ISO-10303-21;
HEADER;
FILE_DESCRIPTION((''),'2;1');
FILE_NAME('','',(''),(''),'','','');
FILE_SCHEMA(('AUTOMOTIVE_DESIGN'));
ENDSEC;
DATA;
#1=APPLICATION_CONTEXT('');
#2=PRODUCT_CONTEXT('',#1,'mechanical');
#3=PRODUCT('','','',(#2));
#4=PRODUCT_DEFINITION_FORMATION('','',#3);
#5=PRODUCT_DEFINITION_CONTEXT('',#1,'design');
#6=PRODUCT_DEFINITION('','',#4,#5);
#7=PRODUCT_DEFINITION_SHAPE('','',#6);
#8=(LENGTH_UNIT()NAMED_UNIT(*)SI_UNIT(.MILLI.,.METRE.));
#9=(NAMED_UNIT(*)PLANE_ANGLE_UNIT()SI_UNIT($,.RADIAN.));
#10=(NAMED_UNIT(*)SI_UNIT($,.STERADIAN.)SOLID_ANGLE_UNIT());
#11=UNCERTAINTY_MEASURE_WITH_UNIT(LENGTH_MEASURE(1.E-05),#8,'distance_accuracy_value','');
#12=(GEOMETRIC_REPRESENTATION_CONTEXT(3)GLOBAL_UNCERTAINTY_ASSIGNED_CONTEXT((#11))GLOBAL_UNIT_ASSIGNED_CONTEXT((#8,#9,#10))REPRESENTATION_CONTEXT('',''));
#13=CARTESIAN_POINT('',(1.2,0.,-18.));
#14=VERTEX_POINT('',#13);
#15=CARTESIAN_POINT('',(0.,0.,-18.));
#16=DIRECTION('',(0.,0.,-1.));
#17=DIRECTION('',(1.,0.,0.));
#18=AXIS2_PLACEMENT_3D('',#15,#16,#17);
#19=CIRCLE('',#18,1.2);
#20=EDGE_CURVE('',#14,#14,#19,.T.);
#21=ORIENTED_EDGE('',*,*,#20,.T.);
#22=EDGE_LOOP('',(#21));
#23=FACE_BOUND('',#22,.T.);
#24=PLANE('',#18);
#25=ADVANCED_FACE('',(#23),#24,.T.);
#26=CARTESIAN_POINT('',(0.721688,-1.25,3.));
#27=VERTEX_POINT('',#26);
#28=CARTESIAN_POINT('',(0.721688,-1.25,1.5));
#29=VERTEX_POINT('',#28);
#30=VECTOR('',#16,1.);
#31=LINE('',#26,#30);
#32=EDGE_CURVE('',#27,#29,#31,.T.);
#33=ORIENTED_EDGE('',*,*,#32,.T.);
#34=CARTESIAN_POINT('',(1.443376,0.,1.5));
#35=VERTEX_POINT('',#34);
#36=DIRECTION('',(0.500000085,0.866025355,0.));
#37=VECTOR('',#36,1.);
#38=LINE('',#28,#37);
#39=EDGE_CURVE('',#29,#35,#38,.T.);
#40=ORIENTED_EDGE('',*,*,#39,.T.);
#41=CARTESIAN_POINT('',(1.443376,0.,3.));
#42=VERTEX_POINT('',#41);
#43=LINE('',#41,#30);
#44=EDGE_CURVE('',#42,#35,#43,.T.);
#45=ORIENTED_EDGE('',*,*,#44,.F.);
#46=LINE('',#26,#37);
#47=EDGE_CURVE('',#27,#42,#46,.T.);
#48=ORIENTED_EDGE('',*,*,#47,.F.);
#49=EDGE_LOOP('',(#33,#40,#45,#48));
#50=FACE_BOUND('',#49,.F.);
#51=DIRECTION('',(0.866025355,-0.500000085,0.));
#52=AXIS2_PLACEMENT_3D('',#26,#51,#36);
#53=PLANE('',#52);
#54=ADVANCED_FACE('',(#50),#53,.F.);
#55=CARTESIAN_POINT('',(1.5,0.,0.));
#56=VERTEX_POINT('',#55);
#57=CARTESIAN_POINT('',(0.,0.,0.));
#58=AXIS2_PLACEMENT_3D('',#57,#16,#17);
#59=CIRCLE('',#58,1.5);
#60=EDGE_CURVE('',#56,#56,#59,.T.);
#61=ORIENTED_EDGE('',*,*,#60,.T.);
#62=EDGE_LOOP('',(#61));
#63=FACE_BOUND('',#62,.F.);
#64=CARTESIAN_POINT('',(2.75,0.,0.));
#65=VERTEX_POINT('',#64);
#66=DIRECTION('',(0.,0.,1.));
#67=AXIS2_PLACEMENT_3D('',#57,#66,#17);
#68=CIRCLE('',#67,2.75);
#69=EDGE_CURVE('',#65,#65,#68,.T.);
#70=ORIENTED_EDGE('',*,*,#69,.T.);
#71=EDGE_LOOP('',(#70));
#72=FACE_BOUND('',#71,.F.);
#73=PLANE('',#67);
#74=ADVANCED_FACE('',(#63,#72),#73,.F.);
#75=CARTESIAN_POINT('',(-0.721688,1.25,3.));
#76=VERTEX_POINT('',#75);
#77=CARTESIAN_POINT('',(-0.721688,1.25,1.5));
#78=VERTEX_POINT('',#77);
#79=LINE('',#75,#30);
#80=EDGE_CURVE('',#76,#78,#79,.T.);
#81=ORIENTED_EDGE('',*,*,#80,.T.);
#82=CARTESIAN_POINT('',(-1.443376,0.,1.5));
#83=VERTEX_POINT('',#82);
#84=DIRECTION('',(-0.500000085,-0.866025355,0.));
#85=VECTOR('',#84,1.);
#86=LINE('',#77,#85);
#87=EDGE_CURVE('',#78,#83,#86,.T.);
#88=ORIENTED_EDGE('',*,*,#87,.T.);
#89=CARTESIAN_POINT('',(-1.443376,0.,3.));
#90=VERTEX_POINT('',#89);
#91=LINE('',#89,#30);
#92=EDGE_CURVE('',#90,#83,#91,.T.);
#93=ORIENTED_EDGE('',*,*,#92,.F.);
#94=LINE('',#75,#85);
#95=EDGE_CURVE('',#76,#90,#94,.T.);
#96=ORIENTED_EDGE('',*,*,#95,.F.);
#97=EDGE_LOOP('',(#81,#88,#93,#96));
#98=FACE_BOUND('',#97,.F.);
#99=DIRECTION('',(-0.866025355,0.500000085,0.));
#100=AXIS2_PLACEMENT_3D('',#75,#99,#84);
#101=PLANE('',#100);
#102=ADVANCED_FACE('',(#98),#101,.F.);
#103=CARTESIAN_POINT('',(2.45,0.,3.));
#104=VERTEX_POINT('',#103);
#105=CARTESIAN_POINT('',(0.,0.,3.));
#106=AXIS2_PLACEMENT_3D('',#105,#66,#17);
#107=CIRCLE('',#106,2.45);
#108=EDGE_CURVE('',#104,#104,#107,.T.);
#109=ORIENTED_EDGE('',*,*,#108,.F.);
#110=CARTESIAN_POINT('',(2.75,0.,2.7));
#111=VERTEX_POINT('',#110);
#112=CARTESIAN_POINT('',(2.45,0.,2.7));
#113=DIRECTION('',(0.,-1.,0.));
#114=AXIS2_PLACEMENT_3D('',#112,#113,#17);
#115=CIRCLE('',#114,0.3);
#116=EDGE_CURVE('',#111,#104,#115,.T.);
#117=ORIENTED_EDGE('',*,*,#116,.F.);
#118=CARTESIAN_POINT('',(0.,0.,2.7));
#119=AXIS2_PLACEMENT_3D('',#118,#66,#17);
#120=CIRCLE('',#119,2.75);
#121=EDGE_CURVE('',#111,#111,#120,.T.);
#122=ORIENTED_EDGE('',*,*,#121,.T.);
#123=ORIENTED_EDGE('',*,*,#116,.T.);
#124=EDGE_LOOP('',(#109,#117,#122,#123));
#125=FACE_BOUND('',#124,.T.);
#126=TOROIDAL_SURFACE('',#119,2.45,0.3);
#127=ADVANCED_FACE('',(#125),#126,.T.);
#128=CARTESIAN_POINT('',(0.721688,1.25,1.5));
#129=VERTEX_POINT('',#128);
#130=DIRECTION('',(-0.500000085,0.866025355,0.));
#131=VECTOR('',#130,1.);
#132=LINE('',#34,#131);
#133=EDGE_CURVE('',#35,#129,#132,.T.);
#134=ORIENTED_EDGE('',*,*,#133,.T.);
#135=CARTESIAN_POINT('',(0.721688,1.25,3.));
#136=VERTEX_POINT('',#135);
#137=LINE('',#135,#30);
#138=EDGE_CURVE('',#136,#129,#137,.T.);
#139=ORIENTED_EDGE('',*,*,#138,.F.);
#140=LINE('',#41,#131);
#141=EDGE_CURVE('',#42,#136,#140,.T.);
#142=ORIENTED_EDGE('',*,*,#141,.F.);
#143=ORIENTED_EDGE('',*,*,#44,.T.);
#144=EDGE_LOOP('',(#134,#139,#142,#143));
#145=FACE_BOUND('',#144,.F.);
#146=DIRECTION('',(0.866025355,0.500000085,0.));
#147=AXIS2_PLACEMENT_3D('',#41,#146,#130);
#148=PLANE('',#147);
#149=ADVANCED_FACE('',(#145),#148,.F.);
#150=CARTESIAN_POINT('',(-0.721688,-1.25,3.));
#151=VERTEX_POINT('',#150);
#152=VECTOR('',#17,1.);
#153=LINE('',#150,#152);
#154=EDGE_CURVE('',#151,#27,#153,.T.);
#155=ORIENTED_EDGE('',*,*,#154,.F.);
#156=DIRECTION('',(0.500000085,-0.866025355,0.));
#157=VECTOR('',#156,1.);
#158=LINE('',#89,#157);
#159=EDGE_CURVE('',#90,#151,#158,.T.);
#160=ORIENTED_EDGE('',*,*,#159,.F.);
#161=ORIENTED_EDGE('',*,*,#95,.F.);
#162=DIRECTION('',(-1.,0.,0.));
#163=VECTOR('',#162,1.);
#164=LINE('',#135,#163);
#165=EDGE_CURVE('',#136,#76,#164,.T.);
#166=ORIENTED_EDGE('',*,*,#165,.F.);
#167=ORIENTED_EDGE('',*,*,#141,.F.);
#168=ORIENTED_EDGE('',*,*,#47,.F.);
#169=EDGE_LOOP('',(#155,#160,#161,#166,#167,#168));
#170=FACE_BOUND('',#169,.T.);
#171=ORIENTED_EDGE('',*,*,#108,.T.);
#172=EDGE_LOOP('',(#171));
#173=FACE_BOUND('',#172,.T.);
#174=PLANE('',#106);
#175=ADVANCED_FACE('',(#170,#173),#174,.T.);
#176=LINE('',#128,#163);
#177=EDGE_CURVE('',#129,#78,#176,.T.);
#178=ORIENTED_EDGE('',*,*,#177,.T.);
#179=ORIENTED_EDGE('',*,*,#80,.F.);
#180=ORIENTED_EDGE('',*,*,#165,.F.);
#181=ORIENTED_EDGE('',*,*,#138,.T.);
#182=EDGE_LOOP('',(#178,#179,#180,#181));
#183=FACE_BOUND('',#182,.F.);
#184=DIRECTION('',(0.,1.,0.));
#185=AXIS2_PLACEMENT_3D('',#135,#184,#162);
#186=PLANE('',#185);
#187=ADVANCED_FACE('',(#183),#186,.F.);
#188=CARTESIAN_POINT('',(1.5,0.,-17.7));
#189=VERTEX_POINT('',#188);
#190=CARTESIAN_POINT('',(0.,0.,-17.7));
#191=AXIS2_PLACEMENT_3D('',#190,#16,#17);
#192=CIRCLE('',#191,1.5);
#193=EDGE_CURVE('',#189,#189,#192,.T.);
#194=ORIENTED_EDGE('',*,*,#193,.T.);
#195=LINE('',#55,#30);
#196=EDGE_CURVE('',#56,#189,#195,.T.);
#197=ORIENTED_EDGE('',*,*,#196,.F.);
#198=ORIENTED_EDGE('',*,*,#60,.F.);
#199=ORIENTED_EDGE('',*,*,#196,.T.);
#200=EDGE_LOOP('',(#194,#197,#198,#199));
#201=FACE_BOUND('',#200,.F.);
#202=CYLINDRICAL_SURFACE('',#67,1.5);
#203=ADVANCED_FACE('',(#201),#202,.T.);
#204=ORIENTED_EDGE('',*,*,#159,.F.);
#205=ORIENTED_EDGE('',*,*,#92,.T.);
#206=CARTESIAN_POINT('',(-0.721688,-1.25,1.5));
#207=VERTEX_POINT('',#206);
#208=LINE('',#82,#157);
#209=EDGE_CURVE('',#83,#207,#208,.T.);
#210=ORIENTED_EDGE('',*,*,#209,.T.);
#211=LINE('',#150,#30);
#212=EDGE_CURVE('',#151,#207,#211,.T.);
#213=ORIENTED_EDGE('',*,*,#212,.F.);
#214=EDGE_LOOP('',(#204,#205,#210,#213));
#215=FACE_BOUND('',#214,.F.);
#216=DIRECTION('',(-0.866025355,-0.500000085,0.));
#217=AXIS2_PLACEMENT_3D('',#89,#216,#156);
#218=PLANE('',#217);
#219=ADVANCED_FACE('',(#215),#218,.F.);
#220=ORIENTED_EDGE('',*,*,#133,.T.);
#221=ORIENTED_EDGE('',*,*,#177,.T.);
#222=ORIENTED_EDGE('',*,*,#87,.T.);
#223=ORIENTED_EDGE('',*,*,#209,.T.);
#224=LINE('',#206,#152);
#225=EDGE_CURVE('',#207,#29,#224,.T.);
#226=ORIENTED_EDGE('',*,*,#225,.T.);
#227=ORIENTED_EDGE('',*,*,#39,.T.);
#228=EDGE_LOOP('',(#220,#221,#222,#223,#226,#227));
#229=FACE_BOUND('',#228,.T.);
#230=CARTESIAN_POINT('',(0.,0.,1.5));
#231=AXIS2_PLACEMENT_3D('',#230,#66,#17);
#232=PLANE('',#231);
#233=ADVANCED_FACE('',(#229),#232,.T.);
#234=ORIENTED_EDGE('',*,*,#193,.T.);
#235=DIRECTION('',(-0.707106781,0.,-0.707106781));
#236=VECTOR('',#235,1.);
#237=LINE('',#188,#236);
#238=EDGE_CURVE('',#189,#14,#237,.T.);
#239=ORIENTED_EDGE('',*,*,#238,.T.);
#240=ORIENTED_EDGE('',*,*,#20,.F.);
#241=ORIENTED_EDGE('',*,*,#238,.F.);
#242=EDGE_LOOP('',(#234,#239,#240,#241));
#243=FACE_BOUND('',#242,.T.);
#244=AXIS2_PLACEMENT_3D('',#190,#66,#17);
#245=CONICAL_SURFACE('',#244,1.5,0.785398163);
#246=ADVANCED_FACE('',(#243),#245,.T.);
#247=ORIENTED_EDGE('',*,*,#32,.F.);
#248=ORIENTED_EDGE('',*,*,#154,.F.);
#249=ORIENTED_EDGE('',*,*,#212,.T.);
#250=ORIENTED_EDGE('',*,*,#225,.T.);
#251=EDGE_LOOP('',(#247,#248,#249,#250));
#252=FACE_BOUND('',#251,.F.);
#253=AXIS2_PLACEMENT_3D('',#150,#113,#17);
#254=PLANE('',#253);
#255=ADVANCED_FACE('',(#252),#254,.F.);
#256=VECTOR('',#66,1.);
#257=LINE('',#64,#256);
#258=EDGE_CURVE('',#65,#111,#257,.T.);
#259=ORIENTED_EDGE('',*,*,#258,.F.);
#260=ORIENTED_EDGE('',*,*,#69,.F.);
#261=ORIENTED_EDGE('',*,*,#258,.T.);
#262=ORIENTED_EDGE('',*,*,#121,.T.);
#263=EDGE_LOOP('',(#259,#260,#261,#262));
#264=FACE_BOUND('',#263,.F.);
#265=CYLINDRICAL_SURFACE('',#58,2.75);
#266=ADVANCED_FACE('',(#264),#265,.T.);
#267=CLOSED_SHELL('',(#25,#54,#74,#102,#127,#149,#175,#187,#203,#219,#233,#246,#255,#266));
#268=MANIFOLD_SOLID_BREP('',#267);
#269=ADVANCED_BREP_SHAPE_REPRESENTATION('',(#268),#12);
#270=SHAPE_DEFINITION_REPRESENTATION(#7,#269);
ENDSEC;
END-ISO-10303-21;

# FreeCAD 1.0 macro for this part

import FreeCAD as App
import Part
import Sketcher

V = App.Vector
Q = App.Units.Quantity


def edges_at(feature, points):
    """Names of the edges that pass closest to the given points."""
    edges = feature.Shape.Edges
    near = lambda p: min(range(len(edges)), key=lambda i: edges[i].distToShape(Part.Vertex(*p))[0])
    return sorted({f"Edge{near(p) + 1}" for p in points})


def add_polygon(sketch, points):
    """Adds a closed chain of lines whose ends are joined by coincident constraints."""
    first, n = sketch.GeometryCount, len(points)
    for a, b in zip(points, points[1:] + points[:1]):
        sketch.addGeometry(Part.LineSegment(App.Vector(*a, 0), App.Vector(*b, 0)), False)
    for i in range(n):
        sketch.addConstraint(Sketcher.Constraint("Coincident", first + i, 2, first + (i + 1) % n, 1))

doc = App.newDocument("Part")
body = doc.addObject("PartDesign::Body", "Body")

# Sketch on XY plane
sketch1 = body.newObject("Sketcher::SketchObject", "Sketch")
sketch1.AttachmentSupport = (doc.getObject("XY_Plane"), [""])
sketch1.MapMode = "FlatFace"
sketch1.addGeometry(Part.Circle(V(0, 0, 0), V(0, 0, 1), 2.8), False)
sketch1.addConstraint([
    Sketcher.Constraint("Coincident", 0, 3, -1, 1),
    Sketcher.Constraint("Diameter", 0, Q("5.5 mm")),
])
pad1 = body.newObject("PartDesign::Pad", "Pad")
pad1.Profile = sketch1
pad1.Length = 3

# Sketch on XY plane
sketch2 = body.newObject("Sketcher::SketchObject", "Sketch001")
sketch2.AttachmentSupport = (doc.getObject("XY_Plane"), [""])
sketch2.MapMode = "FlatFace"
sketch2.addGeometry(Part.Circle(V(0, 0, 0), V(0, 0, 1), 1.5), False)
sketch2.addConstraint([
    Sketcher.Constraint("Coincident", 0, 3, -1, 1),
    Sketcher.Constraint("Diameter", 0, Q("3 mm")),
])
pad2 = body.newObject("PartDesign::Pad", "Pad001")
pad2.Profile = sketch2
pad2.Length = 18
pad2.Reversed = True
doc.recompute()

chamfer = body.newObject("PartDesign::Chamfer", "Chamfer")
chamfer.Base = (pad2, edges_at(pad2, [(-1.5, 0, -18)]))
chamfer.Size = 0.3
doc.recompute()

fillet = body.newObject("PartDesign::Fillet", "Fillet")
fillet.Base = (chamfer, edges_at(chamfer, [(-2.75, 0, 3)]))
fillet.Radius = 0.3

# Sketch on XY plane
sketch3 = body.newObject("Sketcher::SketchObject", "Sketch002")
sketch3.AttachmentSupport = (doc.getObject("XY_Plane"), [""])
sketch3.MapMode = "FlatFace"
sketch3.AttachmentOffset = App.Placement(V(0, 0, 3), App.Rotation())
add_polygon(sketch3, [(0.7, 1.2), (-0.7, 1.2), (-1.4, 0), (-0.7, -1.2), (0.7, -1.2), (1.4, 0)])  # lines 0-5
sketch3.addConstraint([
    Sketcher.Constraint("Horizontal", 0),
    Sketcher.Constraint("Horizontal", 3),
    Sketcher.Constraint("Symmetric", 0, 2, 3, 2, -1, 1),
    Sketcher.Constraint("Symmetric", 1, 2, 4, 2, -1, 1),
    Sketcher.Constraint("PointOnObject", 1, 2, -1),
    Sketcher.Constraint("Parallel", 2, 5),
    Sketcher.Constraint("Vertical", 0, 2, 2, 2),
    Sketcher.Constraint("Angle", 1, Q("-120.000006 deg")),
    Sketcher.Constraint("DistanceY", 2, 2, 0, 2, Q("2.5 mm")),
    Sketcher.Constraint("DistanceX", 0, 2, 0, 1, Q("1.443376 mm")),
])
pocket1 = body.newObject("PartDesign::Pocket", "Pocket")
pocket1.Profile = sketch3
pocket1.Length = 1.5

doc.recompute()
